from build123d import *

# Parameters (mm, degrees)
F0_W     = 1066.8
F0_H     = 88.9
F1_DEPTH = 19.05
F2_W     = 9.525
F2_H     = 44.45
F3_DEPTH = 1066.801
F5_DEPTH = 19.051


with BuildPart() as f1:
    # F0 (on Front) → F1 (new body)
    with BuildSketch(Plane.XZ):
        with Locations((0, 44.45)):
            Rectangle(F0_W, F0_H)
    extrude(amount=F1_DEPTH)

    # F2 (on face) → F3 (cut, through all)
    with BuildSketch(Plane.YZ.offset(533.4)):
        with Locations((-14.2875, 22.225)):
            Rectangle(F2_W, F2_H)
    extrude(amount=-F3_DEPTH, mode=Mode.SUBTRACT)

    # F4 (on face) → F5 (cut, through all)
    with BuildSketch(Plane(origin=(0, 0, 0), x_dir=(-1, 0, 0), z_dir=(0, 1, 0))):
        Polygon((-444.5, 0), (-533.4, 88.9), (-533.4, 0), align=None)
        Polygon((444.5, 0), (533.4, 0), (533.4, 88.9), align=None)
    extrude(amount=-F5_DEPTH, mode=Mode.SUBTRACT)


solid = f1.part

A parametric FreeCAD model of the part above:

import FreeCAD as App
import Part
import Sketcher
Q = App.Units.Quantity

doc = App.newDocument("Part")
body = doc.addObject("PartDesign::Body", "Body")

sketch1 = doc.addObject("Sketcher::SketchObject", "Sketch")
body.addObject(sketch1)
sketch1.AttachmentSupport = (doc.XZ_Plane, [""])
sketch1.MapMode = "FlatFace"
sketch1.addGeometry([
    Part.LineSegment(App.Vector(-533.4, 88.9, 0), App.Vector(-533.4, 0, 0)),
    Part.LineSegment(App.Vector(-533.4, 0, 0), App.Vector(533.4, 0, 0)),
    Part.LineSegment(App.Vector(533.4, 0, 0), App.Vector(533.4, 88.9, 0)),
    Part.LineSegment(App.Vector(533.4, 88.9, 0), App.Vector(-533.4, 88.9, 0)),
], False)
sketch1.addConstraint([
    Sketcher.Constraint("Coincident", 0, 2, 1, 1),
    Sketcher.Constraint("Coincident", 1, 2, 2, 1),
    Sketcher.Constraint("Coincident", 2, 2, 3, 1),
    Sketcher.Constraint("Coincident", 3, 2, 0, 1),
    Sketcher.Constraint("Vertical", 0),
    Sketcher.Constraint("Horizontal", 1),
    Sketcher.Constraint("Vertical", 2),
    Sketcher.Constraint("Horizontal", 3),
    Sketcher.Constraint("Symmetric", 0, 2, 1, 2, -1, 1),
    Sketcher.Constraint("DistanceX", 1, 1, 1, 2, Q("42 in")),
    Sketcher.Constraint("DistanceY", 0, 2, 0, 1, Q("3.5 in")),
])
pad1 = doc.addObject("PartDesign::Pad", "Pad")
body.addObject(pad1)
pad1.Profile = sketch1
pad1.Length = Q("0.75 in")

sketch2 = doc.addObject("Sketcher::SketchObject", "Sketch001")
body.addObject(sketch2)
sketch2.AttachmentSupport = (doc.YZ_Plane, [""])
sketch2.MapMode = "FlatFace"
sketch2.AttachmentOffset = App.Placement(App.Vector(0, 0, 21 * 25.4), App.Rotation())
sketch2.addGeometry([
    Part.LineSegment(App.Vector(-19.05, 44.45, 0), App.Vector(-19.05, 0, 0)),
    Part.LineSegment(App.Vector(-19.05, 0, 0), App.Vector(-9.525, 0, 0)),
    Part.LineSegment(App.Vector(-9.525, 0, 0), App.Vector(-9.525, 44.45, 0)),
    Part.LineSegment(App.Vector(-9.525, 44.45, 0), App.Vector(-19.05, 44.45, 0)),
], False)
sketch2.addConstraint([
    Sketcher.Constraint("Coincident", 0, 2, 1, 1),
    Sketcher.Constraint("Coincident", 1, 2, 2, 1),
    Sketcher.Constraint("Coincident", 2, 2, 3, 1),
    Sketcher.Constraint("Coincident", 3, 2, 0, 1),
    Sketcher.Constraint("Vertical", 0),
    Sketcher.Constraint("Horizontal", 1),
    Sketcher.Constraint("Vertical", 2),
    Sketcher.Constraint("Horizontal", 3),
    Sketcher.Constraint("PointOnObject", 0, 2, -1),
    Sketcher.Constraint("DistanceY", 0, 2, 0, 1, Q("1.75 in")),
    Sketcher.Constraint("DistanceX", 1, 1, 1, 2, Q("0.375 in")),
    Sketcher.Constraint("DistanceX", 0, 2, -1, 1, Q("0.75 in")),
])
pocket1 = doc.addObject("PartDesign::Pocket", "Pocket")
body.addObject(pocket1)
pocket1.Profile = sketch2
pocket1.Type = "ThroughAll"

sketch3 = doc.addObject("Sketcher::SketchObject", "Sketch002")
body.addObject(sketch3)
sketch3.AttachmentSupport = (doc.XZ_Plane, [""])
sketch3.MapMode = "FlatFace"
sketch3.addGeometry([
    Part.LineSegment(App.Vector(444.5, 0, 0), App.Vector(533.4, 88.9, 0)),
    Part.LineSegment(App.Vector(533.4, 88.9, 0), App.Vector(533.4, 0, 0)),
    Part.LineSegment(App.Vector(533.4, 0, 0), App.Vector(444.5, 0, 0)),
    Part.LineSegment(App.Vector(-444.5, 0, 0), App.Vector(-533.4, 0, 0)),
    Part.LineSegment(App.Vector(-533.4, 0, 0), App.Vector(-533.4, 88.9, 0)),
    Part.LineSegment(App.Vector(-533.4, 88.9, 0), App.Vector(-444.5, 0, 0)),
], False)
sketch3.addConstraint([
    Sketcher.Constraint("Coincident", 0, 2, 1, 1),
    Sketcher.Constraint("Coincident", 1, 2, 2, 1),
    Sketcher.Constraint("Coincident", 2, 2, 0, 1),
    Sketcher.Constraint("Coincident", 3, 2, 4, 1),
    Sketcher.Constraint("Coincident", 4, 2, 5, 1),
    Sketcher.Constraint("Coincident", 5, 2, 3, 1),
    Sketcher.Constraint("Vertical", 1),
    Sketcher.Constraint("Horizontal", 2),
    Sketcher.Constraint("Horizontal", 3),
    Sketcher.Constraint("Vertical", 4),
    Sketcher.Constraint("Symmetric", 1, 2, 3, 2, -1, 1),
    Sketcher.Constraint("Symmetric", 2, 2, 5, 2, -2),
    Sketcher.Constraint("Perpendicular", 0, 5),
    Sketcher.Constraint("Horizontal", 0, 2, 4, 2),
    Sketcher.Constraint("DistanceX", 2, 2, 2, 1, Q("3.5 in")),
    Sketcher.Constraint("DistanceX", -1, 1, 0, 2, Q("21 in")),
])
pocket2 = doc.addObject("PartDesign::Pocket", "Pocket001")
body.addObject(pocket2)
pocket2.Profile = sketch3
pocket2.Type = "ThroughAll"
pocket2.Reversed = True

doc.recompute()
